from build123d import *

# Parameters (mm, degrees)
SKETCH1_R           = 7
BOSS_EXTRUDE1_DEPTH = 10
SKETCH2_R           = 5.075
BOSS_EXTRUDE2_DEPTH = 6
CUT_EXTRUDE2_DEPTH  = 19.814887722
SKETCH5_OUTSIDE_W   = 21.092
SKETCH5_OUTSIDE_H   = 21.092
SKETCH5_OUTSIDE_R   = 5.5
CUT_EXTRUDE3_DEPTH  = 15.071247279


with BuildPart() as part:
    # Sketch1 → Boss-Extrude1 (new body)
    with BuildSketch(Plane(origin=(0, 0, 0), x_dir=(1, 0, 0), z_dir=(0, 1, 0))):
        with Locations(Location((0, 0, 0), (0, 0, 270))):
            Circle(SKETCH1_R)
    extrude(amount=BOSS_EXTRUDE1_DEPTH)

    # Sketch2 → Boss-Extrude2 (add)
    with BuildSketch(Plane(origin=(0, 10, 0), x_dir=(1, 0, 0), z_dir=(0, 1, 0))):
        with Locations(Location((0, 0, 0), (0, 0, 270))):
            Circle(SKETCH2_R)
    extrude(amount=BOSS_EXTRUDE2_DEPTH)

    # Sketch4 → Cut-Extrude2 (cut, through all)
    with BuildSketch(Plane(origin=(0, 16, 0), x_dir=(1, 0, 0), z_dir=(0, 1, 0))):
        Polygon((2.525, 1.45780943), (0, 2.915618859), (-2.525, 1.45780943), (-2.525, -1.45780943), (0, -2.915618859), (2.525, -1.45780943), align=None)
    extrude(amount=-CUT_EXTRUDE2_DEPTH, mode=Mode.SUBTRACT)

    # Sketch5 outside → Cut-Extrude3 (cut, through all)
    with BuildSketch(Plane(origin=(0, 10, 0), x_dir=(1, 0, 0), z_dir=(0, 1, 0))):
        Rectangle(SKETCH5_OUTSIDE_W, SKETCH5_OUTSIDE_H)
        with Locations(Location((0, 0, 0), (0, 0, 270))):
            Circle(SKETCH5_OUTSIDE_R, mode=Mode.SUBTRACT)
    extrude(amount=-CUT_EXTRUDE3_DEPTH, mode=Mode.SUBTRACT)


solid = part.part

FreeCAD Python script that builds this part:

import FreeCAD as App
import Part
import Sketcher

V = App.Vector
Q = App.Units.Quantity


def add_polygon(sketch, points):
    """Adds a closed chain of lines whose ends are joined by coincident constraints."""
    first, n = sketch.GeometryCount, len(points)
    for a, b in zip(points, points[1:] + points[:1]):
        sketch.addGeometry(Part.LineSegment(App.Vector(*a, 0), App.Vector(*b, 0)), False)
    for i in range(n):
        sketch.addConstraint(Sketcher.Constraint("Coincident", first + i, 2, first + (i + 1) % n, 1))

doc = App.newDocument("Part")
params = doc.addObject("Spreadsheet::Sheet", "Params")
for row, (alias, value) in enumerate([
    ("sketch1_diameter", "14 mm"),
    ("pad1_length", "10 mm"),
    ("sketch2_diameter", "10.15 mm"),
    ("pad2_length", "6 mm"),
    ("sketch4_diameter", "11 mm"),
], start=1):
    params.set(f"A{row}", alias)
    params.set(f"B{row}", "=" + value)
    params.setAlias(f"B{row}", alias)

body = doc.addObject("PartDesign::Body", "Body")

sketch1 = body.newObject("Sketcher::SketchObject", "Sketch")
sketch1.AttachmentSupport = (doc.getObject("XZ_Plane"), [""])
sketch1.MapMode = "FlatFace"
sketch1.addGeometry(Part.Circle(V(0, 0, 0), V(0, 0, 1), 7), False)
sketch1.addConstraint(Sketcher.Constraint("Coincident", 0, 3, -1, 1))
sketch1.addConstraint(Sketcher.Constraint("Diameter", 0, 14.0))
sketch1.setExpression("Constraints[1]", "Params.sketch1_diameter")
pad1 = body.newObject("PartDesign::Pad", "Pad")
pad1.Profile = sketch1
pad1.setExpression("Length", "Params.pad1_length")
pad1.Reversed = True

sketch2 = body.newObject("Sketcher::SketchObject", "Sketch001")
sketch2.AttachmentSupport = (doc.getObject("XZ_Plane"), [""])
sketch2.MapMode = "FlatFace"
sketch2.AttachmentOffset = App.Placement(V(0, 0, -10), App.Rotation())
sketch2.addGeometry(Part.Circle(V(0, 0, 0), V(0, 0, 1), 5.075), False)
sketch2.addConstraint(Sketcher.Constraint("Coincident", 0, 3, -1, 1))
sketch2.addConstraint(Sketcher.Constraint("Diameter", 0, 10.15))
sketch2.setExpression("Constraints[1]", "Params.sketch2_diameter")
pad2 = body.newObject("PartDesign::Pad", "Pad001")
pad2.Profile = sketch2
pad2.setExpression("Length", "Params.pad2_length")
pad2.Reversed = True

sketch3 = body.newObject("Sketcher::SketchObject", "Sketch002")
sketch3.AttachmentSupport = (doc.getObject("XZ_Plane"), [""])
sketch3.MapMode = "FlatFace"
sketch3.AttachmentOffset = App.Placement(V(0, 0, -16), App.Rotation())
add_polygon(sketch3, [(2.525, -1.457809), (0, -2.915619), (-2.525, -1.457809), (-2.525, 1.457809), (0, 2.915619), (2.525, 1.457809)])
sketch3.addConstraint(Sketcher.Constraint("Vertical", 2))
sketch3.addConstraint(Sketcher.Constraint("Vertical", 5))
sketch3.addConstraint(Sketcher.Constraint("Symmetric", 0, 2, 3, 2, -1, 1))
sketch3.addConstraint(Sketcher.Constraint("Symmetric", 1, 2, 4, 2, -1, 1))
sketch3.addConstraint(Sketcher.Constraint("PointOnObject", 0, 2, -2))
sketch3.addConstraint(Sketcher.Constraint("Parallel", 0, 3))
sketch3.addConstraint(Sketcher.Constraint("Horizontal", 2, 2, 4, 2))
sketch3.addConstraint(Sketcher.Constraint("Angle", 0, Q("-150 deg")))
sketch3.addConstraint(Sketcher.Constraint("DistanceX", 2, 2, 4, 2, 5.05))
sketch3.addConstraint(Sketcher.Constraint("DistanceY", 2, 1, 2, 2, 2.915619))
pocket1 = body.newObject("PartDesign::Pocket", "Pocket")
pocket1.Profile = sketch3
pocket1.Type = "ThroughAll"
pocket1.Reversed = True

sketch4 = body.newObject("Sketcher::SketchObject", "Sketch003")
sketch4.AttachmentSupport = (doc.getObject("XZ_Plane"), [""])
sketch4.MapMode = "FlatFace"
sketch4.AttachmentOffset = App.Placement(V(0, 0, -10), App.Rotation())
add_polygon(sketch4, [(-10.546, -10.546), (-10.546, 10.546), (10.546, 10.546), (10.546, -10.546)])
sketch4.addGeometry(Part.Circle(V(0, 0, 0), V(0, 0, 1), 5.5), False)
sketch4.addConstraint(Sketcher.Constraint("Vertical", 0))
sketch4.addConstraint(Sketcher.Constraint("Horizontal", 1))
sketch4.addConstraint(Sketcher.Constraint("Vertical", 2))
sketch4.addConstraint(Sketcher.Constraint("Horizontal", 3))
sketch4.addConstraint(Sketcher.Constraint("Coincident", 4, 3, -1, 1))
sketch4.addConstraint(Sketcher.Constraint("Symmetric", 0, 2, 2, 2, -1, 1))
sketch4.addConstraint(Sketcher.Constraint("Equal", 3, 0))
sketch4.addConstraint(Sketcher.Constraint("Diameter", 4, 11.0))
sketch4.addConstraint(Sketcher.Constraint("DistanceX", 1, 1, 1, 2, 21.092))
sketch4.setExpression("Constraints[11]", "Params.sketch4_diameter")
pocket2 = body.newObject("PartDesign::Pocket", "Pocket001")
pocket2.Profile = sketch4
pocket2.Type = "ThroughAll"
pocket2.Reversed = True

doc.recompute()
